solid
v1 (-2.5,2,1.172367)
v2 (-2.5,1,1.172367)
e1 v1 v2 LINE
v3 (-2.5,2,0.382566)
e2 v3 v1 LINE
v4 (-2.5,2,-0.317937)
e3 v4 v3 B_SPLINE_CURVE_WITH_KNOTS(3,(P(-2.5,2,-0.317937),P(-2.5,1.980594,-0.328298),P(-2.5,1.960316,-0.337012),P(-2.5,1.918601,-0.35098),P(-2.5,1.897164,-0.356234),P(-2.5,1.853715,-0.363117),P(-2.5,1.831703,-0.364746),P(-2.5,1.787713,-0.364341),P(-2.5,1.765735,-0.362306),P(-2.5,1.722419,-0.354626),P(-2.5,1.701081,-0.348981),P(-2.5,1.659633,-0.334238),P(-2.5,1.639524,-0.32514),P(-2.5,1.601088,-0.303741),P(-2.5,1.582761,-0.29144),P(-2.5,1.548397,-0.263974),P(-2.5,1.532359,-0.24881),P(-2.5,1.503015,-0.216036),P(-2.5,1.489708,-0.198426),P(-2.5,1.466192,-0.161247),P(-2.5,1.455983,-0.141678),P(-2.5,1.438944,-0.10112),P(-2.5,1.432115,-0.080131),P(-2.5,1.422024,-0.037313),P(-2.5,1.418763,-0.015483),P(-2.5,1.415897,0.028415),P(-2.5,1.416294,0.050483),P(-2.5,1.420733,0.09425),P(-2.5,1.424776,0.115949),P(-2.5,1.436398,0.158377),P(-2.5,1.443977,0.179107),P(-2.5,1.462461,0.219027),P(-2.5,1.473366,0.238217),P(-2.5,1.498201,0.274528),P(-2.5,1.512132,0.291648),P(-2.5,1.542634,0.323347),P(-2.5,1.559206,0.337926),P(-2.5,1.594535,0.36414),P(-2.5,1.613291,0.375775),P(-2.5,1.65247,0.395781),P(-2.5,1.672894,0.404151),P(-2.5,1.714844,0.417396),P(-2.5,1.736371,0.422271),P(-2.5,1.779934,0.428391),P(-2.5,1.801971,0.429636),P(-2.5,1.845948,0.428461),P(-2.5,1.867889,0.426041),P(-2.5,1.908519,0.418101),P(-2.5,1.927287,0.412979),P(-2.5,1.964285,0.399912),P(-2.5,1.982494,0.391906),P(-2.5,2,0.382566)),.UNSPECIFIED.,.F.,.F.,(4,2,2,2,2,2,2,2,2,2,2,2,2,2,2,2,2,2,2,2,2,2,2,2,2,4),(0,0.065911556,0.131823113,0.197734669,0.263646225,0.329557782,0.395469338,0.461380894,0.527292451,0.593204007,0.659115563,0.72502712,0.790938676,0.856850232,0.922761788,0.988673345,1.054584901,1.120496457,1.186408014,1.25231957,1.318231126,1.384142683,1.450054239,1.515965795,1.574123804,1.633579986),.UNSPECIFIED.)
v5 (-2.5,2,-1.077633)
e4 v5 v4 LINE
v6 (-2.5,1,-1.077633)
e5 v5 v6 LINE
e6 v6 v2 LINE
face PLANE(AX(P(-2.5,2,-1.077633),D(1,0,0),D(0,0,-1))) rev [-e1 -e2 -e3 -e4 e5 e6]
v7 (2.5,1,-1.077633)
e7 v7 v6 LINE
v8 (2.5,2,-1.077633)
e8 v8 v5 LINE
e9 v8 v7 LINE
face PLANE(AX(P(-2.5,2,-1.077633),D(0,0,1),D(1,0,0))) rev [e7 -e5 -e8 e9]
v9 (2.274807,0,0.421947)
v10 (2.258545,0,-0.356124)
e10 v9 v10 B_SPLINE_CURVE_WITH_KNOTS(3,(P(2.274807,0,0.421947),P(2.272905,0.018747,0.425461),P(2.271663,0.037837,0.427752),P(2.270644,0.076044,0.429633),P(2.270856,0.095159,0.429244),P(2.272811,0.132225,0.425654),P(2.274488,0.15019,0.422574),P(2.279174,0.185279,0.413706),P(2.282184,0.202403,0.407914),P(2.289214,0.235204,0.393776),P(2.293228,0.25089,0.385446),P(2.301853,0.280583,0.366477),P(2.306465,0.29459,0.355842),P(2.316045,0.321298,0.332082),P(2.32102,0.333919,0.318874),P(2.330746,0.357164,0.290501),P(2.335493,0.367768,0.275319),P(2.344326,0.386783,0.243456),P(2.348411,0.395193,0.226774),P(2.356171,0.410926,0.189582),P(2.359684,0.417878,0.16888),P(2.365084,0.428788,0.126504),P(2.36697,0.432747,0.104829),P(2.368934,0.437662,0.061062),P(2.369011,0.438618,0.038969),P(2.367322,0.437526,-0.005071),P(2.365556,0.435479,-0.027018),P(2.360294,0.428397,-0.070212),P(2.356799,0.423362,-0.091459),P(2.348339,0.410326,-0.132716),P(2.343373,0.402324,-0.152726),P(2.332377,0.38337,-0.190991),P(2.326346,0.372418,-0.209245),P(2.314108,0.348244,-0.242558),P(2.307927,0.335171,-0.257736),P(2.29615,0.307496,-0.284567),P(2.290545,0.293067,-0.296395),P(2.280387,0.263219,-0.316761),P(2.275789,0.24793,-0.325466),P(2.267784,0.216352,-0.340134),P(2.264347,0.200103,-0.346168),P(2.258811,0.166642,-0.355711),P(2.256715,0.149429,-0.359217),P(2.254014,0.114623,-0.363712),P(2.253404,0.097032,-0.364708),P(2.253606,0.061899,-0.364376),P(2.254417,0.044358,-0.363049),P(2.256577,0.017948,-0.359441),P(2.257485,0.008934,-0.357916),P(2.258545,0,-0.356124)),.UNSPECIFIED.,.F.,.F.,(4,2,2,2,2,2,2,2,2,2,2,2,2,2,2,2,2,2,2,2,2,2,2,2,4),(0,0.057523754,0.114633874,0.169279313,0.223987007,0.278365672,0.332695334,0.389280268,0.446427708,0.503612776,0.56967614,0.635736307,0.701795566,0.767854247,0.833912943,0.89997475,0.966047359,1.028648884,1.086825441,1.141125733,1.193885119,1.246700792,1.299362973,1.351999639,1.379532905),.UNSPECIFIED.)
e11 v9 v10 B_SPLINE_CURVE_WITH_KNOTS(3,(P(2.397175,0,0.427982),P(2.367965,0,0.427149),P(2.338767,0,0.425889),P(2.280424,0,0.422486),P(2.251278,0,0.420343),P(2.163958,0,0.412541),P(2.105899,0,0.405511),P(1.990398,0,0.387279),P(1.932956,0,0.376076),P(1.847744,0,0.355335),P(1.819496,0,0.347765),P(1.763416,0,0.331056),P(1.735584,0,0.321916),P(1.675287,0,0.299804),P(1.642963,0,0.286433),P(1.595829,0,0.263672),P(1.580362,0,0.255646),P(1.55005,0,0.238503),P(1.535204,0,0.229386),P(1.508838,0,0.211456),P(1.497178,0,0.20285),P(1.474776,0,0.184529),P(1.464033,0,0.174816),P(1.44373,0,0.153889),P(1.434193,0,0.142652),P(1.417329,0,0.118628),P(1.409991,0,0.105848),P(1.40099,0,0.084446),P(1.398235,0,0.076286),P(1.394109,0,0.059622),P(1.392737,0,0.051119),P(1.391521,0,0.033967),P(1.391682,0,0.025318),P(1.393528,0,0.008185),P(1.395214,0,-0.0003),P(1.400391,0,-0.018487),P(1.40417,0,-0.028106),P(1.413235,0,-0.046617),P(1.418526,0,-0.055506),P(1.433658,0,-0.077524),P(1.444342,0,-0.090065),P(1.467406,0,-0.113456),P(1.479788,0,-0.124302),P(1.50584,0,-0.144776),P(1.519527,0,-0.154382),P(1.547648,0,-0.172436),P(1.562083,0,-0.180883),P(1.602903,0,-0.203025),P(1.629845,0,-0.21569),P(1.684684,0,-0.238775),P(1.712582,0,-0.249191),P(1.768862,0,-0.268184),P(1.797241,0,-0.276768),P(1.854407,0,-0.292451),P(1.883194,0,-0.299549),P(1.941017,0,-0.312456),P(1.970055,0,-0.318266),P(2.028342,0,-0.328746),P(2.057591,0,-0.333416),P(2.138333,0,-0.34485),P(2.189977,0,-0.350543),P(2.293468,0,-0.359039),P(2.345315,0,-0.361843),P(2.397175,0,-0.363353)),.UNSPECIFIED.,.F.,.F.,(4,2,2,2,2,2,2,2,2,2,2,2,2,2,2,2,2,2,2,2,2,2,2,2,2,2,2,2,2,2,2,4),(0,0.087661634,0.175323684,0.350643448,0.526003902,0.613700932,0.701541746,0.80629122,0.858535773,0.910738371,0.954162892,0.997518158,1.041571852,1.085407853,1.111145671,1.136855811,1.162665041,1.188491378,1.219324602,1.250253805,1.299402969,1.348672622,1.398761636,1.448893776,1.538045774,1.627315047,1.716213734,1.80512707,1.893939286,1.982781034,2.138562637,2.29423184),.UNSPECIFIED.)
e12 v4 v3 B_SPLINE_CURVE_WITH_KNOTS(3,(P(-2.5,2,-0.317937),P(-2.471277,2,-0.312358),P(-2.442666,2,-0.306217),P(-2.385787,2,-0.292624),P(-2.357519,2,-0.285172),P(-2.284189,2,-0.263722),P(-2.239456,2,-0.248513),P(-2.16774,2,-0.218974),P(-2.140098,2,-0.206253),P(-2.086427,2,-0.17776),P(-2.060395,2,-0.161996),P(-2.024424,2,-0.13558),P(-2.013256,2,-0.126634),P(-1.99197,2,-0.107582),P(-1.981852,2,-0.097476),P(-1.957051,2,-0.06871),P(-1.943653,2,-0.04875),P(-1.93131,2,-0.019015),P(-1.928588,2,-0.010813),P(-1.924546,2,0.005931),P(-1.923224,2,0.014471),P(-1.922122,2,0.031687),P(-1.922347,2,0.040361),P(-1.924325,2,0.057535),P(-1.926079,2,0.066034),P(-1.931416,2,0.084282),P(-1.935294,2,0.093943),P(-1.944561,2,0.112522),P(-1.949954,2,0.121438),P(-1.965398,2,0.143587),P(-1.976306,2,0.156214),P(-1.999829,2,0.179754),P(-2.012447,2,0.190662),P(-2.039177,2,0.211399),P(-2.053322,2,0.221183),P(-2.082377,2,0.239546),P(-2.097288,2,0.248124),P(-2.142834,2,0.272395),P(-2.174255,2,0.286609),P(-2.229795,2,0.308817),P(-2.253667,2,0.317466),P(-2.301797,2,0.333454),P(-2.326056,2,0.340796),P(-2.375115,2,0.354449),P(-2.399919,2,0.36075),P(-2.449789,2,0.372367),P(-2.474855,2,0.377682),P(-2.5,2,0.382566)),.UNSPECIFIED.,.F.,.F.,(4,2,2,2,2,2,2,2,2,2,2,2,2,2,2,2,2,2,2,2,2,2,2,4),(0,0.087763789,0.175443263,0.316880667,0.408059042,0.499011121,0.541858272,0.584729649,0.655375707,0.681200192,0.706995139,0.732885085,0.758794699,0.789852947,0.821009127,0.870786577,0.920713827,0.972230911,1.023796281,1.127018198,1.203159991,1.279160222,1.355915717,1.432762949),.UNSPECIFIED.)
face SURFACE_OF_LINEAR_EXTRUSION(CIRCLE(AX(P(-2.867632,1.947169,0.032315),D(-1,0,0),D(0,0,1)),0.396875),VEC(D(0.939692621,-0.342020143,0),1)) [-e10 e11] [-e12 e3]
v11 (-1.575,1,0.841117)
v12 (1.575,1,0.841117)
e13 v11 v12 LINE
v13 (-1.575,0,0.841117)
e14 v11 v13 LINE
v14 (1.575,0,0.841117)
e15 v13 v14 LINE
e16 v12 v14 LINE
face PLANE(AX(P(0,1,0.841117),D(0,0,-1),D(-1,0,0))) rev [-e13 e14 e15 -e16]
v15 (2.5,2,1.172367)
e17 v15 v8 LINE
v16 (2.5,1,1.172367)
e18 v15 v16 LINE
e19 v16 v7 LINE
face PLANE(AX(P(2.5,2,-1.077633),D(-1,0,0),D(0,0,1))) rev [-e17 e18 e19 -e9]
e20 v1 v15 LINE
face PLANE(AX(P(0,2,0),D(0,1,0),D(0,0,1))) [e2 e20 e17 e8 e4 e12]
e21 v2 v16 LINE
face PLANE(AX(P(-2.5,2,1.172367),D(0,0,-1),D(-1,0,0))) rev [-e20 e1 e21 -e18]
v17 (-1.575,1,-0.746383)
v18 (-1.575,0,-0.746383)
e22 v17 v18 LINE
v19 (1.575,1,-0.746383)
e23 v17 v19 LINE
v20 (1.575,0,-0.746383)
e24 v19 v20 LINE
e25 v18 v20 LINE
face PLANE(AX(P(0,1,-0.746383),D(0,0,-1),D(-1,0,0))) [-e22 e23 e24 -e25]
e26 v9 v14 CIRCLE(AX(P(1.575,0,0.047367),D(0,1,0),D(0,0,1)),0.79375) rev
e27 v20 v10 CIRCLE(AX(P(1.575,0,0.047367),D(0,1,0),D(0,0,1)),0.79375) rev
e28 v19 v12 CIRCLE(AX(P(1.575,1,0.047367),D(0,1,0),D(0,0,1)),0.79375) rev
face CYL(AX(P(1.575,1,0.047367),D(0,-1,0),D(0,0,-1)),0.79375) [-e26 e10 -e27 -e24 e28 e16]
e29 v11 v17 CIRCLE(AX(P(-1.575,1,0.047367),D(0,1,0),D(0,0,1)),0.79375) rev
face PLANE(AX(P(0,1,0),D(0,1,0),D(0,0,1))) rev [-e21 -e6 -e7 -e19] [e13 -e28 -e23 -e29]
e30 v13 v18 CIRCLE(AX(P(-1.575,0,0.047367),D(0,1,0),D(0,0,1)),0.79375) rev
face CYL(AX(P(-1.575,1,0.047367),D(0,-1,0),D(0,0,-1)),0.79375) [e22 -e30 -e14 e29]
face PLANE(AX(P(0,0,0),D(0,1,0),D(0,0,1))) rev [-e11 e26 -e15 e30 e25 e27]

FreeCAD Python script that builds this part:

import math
import FreeCAD as App
import Part
import Sketcher
from FreeCAD import Vector
Q = App.Units.Quantity

doc = App.newDocument("Part")
body = doc.addObject("PartDesign::Body", "Body")

# Sketch on XZ plane
sketch1 = body.newObject("Sketcher::SketchObject", "Sketch")
sketch1.AttachmentSupport = (doc.getObject("XZ_Plane"), [""])
sketch1.MapMode = "FlatFace"
sketch1.addGeometry([
    Part.LineSegment(Vector(1.6, -0.7, 0), Vector(-1.6, -0.7, 0)),
    Part.ArcOfCircle(Part.Circle(Vector(-1.6, 0, 0), Vector(0, 0, 1), 0.8), math.radians(90), math.radians(270)),
    Part.LineSegment(Vector(-1.6, 0.8, 0), Vector(1.6, 0.8, 0)),
    Part.ArcOfCircle(Part.Circle(Vector(1.6, 0, 0), Vector(0, 0, 1), 0.8), math.radians(-90), math.radians(90)),
], False)
sketch1.addConstraint([
    Sketcher.Constraint("Tangent", 0, 2, 1, 2),
    Sketcher.Constraint("Tangent", 1, 1, 2, 1),
    Sketcher.Constraint("Tangent", 2, 2, 3, 2),
    Sketcher.Constraint("Tangent", 3, 1, 0, 1),
    Sketcher.Constraint("Horizontal", 0),
    Sketcher.Constraint("Horizontal", 2),
    Sketcher.Constraint("DistanceX", 0, 2, 0, 1, Q("3.15 mm")),
    Sketcher.Constraint("Radius", 1, Q("0.79375 mm")),
    Sketcher.Constraint("DistanceX", 1, 3, -1, 1, Q("1.575 mm")),
    Sketcher.Constraint("DistanceY", -1, 1, 1, 3, Q("0.047367 mm")),
])
pad1 = body.newObject("PartDesign::Pad", "Pad")
pad1.Profile = sketch1
pad1.Length = 1
pad1.Reversed = True

# Sketch on XZ plane
sketch2 = body.newObject("Sketcher::SketchObject", "Sketch001")
sketch2.AttachmentSupport = (doc.getObject("XZ_Plane"), [""])
sketch2.MapMode = "FlatFace"
sketch2.AttachmentOffset = App.Placement(Vector(0, 0, -1), App.Rotation())
sketch2.addGeometry([
    Part.LineSegment(Vector(-2.5, -1.1, 0), Vector(-2.5, 1.2, 0)),
    Part.LineSegment(Vector(-2.5, 1.2, 0), Vector(2.5, 1.2, 0)),
    Part.LineSegment(Vector(2.5, 1.2, 0), Vector(2.5, -1.1, 0)),
    Part.LineSegment(Vector(2.5, -1.1, 0), Vector(-2.5, -1.1, 0)),
], False)
sketch2.addConstraint([
    Sketcher.Constraint("Coincident", 0, 2, 1, 1),
    Sketcher.Constraint("Coincident", 1, 2, 2, 1),
    Sketcher.Constraint("Coincident", 2, 2, 3, 1),
    Sketcher.Constraint("Coincident", 3, 2, 0, 1),
    Sketcher.Constraint("Vertical", 0),
    Sketcher.Constraint("Horizontal", 1),
    Sketcher.Constraint("Vertical", 2),
    Sketcher.Constraint("Horizontal", 3),
    Sketcher.Constraint("DistanceX", 1, 1, 1, 2, Q("5 mm")),
    Sketcher.Constraint("DistanceY", 0, 1, 0, 2, Q("2.25 mm")),
    Sketcher.Constraint("DistanceX", 0, 2, -1, 1, Q("2.5 mm")),
    Sketcher.Constraint("DistanceY", -1, 1, 0, 2, Q("1.172367 mm")),
])
pad2 = body.newObject("PartDesign::Pad", "Pad001")
pad2.Profile = sketch2
pad2.Length = 1
pad2.Reversed = True

# Sketch on YZ plane
sketch3 = body.newObject("Sketcher::SketchObject", "Sketch002")
sketch3.AttachmentSupport = (doc.getObject("YZ_Plane"), [""])
sketch3.MapMode = "FlatFace"
sketch3.AttachmentOffset = App.Placement(Vector(0, 0, 2.5), App.Rotation())
sketch3.addGeometry(Part.Circle(Vector(-0.01, 0.03, 0), Vector(0, 0, 1), 0.4), False)
sketch3.addConstraint([
    Sketcher.Constraint("Diameter", 0, Q("0.79375 mm")),
    Sketcher.Constraint("DistanceX", 0, 3, -1, 1, Q("0.006489 mm")),
    Sketcher.Constraint("DistanceY", -1, 1, 0, 3, Q("0.032315 mm")),
])

# Sketch on an angled plane
sketch4 = body.newObject("Sketcher::SketchObject", "Sketch003")
sketch4.Placement = App.Placement(Vector(0.292444, 0.803485, 0), App.Rotation(Vector(-0.939692621, 0.342020143, 0), Vector(0, 0, 1), Vector(0.342020143, 0.939692621, 0), "ZXY"))
sketch4.addGeometry(Part.LineSegment(Vector(-2, 0, 0), Vector(3, 0, 0)), False)
sketch4.addConstraint([
    Sketcher.Constraint("Horizontal", 0),
    Sketcher.Constraint("PointOnObject", 0, 1, -1),
    Sketcher.Constraint("DistanceX", 0, 1, 0, 2, Q("5.712114 mm")),
    Sketcher.Constraint("DistanceX", 0, 1, -1, 1, Q("2.349232 mm")),
])
doc.recompute()

subtractivepipe = body.newObject("PartDesign::SubtractivePipe", "SubtractivePipe")
subtractivepipe.Profile = sketch3
subtractivepipe.Spine = (sketch4, ["Edge1"])

doc.recompute()
